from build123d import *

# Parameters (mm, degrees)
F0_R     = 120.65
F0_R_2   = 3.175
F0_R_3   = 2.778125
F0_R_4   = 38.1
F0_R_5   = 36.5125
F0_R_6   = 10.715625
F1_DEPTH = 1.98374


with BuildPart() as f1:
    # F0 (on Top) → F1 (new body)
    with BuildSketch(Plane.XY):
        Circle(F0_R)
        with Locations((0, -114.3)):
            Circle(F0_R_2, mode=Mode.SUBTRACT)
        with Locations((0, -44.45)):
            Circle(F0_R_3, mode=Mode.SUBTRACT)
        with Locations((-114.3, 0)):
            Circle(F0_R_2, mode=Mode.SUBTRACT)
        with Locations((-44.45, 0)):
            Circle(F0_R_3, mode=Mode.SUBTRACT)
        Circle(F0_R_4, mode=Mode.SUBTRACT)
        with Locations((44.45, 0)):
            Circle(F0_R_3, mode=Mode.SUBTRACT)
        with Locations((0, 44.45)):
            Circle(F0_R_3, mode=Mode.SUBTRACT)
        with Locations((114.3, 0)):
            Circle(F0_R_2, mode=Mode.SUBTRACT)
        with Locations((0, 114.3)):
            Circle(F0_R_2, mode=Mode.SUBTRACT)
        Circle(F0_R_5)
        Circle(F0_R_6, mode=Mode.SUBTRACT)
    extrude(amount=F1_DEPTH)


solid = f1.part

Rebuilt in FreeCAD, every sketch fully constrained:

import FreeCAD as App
import Part
import Sketcher
Q = App.Units.Quantity

doc = App.newDocument("Part")
params = doc.addObject("Spreadsheet::Sheet", "Params")
for row, (alias, value) in enumerate([
    ("sketch1_diameter", "3 in"),
    ("sketch1_diameter2", "9.5 in"),
    ("sketch1_diameter3", "0.25 in"),
    ("sketch1_diameter4", "0.21875 in"),
    ("sketch1_diameter5", "2.875 in"),
    ("pad1_length", "0.0781 in"),
], start=1):
    params.set(f"A{row}", alias)
    params.set(f"B{row}", "=" + value)
    params.setAlias(f"B{row}", alias)

body = doc.addObject("PartDesign::Body", "Body")
body.AllowCompound = True

# Sketch on XY plane
sketch1 = body.newObject("Sketcher::SketchObject", "Sketch")
sketch1.AttachmentSupport = (doc.getObject("XY_Plane"), [""])
sketch1.MapMode = "FlatFace"
sketch1.addGeometry([
    Part.Circle(App.Vector(0, 0, 0), App.Vector(0, 0, 1), 120.7),  # 0
    Part.Circle(App.Vector(0, -114.3, 0), App.Vector(0, 0, 1), 3.2),  # 1
    Part.Circle(App.Vector(0, -44.5, 0), App.Vector(0, 0, 1), 2.8),  # 2
    Part.Circle(App.Vector(-114.3, 0, 0), App.Vector(0, 0, 1), 3.2),  # 3
    Part.Circle(App.Vector(-44.5, 0, 0), App.Vector(0, 0, 1), 2.8),  # 4
    Part.Circle(App.Vector(0, 0, 0), App.Vector(0, 0, 1), 38.1),  # 5
    Part.Circle(App.Vector(44.5, 0, 0), App.Vector(0, 0, 1), 2.8),  # 6
    Part.Circle(App.Vector(0, 44.5, 0), App.Vector(0, 0, 1), 2.8),  # 7
    Part.Circle(App.Vector(114.3, 0, 0), App.Vector(0, 0, 1), 3.2),  # 8
    Part.Circle(App.Vector(0, 114.3, 0), App.Vector(0, 0, 1), 3.2),  # 9
    Part.Circle(App.Vector(0, 0, 0), App.Vector(0, 0, 1), 36.5),  # 10
    Part.Circle(App.Vector(0, 0, 0), App.Vector(0, 0, 1), 10.7),  # 11
], False)
sketch1.addConstraint([
    Sketcher.Constraint("Coincident", 0, 3, -1, 1),
    Sketcher.Constraint("Coincident", 5, 3, -1, 1),
    Sketcher.Constraint("Coincident", 10, 3, -1, 1),
    Sketcher.Constraint("Coincident", 11, 3, -1, 1),
    Sketcher.Constraint("Equal", 1, 3),
    Sketcher.Constraint("Equal", 2, 4),
    Sketcher.Constraint("Equal", 4, 6),
    Sketcher.Constraint("Equal", 6, 7),
    Sketcher.Constraint("Equal", 3, 8),
    Sketcher.Constraint("Equal", 8, 9),
    Sketcher.Constraint("Symmetric", 4, 3, 6, 3, -1, 1),
    Sketcher.Constraint("Symmetric", 2, 3, 7, 3, -1, 1),
    Sketcher.Constraint("Symmetric", 3, 3, 8, 3, -1, 1),
    Sketcher.Constraint("Symmetric", 1, 3, 9, 3, -1, 1),
    Sketcher.Constraint("PointOnObject", 1, 3, -2),
    Sketcher.Constraint("PointOnObject", 2, 3, -2),
    Sketcher.Constraint("PointOnObject", 3, 3, -1),
    Sketcher.Constraint("PointOnObject", 4, 3, -1),
    Sketcher.Constraint("Diameter", 5, Q("3 in")),
    Sketcher.Constraint("Diameter", 0, Q("9.5 in")),
    Sketcher.Constraint("Diameter", 1, Q("0.25 in")),
    Sketcher.Constraint("Diameter", 2, Q("0.21875 in")),
    Sketcher.Constraint("Diameter", 10, Q("2.875 in")),
    Sketcher.Constraint("Diameter", 11, Q("0.84375 in")),
    Sketcher.Constraint("DistanceY", 1, 3, -1, 1, Q("4.5 in")),
    Sketcher.Constraint("DistanceX", 3, 3, -1, 1, Q("4.5 in")),
    Sketcher.Constraint("DistanceX", 4, 3, 6, 3, Q("3.5 in")),
    Sketcher.Constraint("DistanceY", 2, 3, 7, 3, Q("3.5 in")),
])
sketch1.setExpression("Constraints[18]", "Params.sketch1_diameter")
sketch1.setExpression("Constraints[19]", "Params.sketch1_diameter2")
sketch1.setExpression("Constraints[20]", "Params.sketch1_diameter3")
sketch1.setExpression("Constraints[21]", "Params.sketch1_diameter4")
sketch1.setExpression("Constraints[22]", "Params.sketch1_diameter5")
pad1 = body.newObject("PartDesign::Pad", "Pad")
pad1.Profile = sketch1
pad1.setExpression("Length", "Params.pad1_length")

doc.recompute()
